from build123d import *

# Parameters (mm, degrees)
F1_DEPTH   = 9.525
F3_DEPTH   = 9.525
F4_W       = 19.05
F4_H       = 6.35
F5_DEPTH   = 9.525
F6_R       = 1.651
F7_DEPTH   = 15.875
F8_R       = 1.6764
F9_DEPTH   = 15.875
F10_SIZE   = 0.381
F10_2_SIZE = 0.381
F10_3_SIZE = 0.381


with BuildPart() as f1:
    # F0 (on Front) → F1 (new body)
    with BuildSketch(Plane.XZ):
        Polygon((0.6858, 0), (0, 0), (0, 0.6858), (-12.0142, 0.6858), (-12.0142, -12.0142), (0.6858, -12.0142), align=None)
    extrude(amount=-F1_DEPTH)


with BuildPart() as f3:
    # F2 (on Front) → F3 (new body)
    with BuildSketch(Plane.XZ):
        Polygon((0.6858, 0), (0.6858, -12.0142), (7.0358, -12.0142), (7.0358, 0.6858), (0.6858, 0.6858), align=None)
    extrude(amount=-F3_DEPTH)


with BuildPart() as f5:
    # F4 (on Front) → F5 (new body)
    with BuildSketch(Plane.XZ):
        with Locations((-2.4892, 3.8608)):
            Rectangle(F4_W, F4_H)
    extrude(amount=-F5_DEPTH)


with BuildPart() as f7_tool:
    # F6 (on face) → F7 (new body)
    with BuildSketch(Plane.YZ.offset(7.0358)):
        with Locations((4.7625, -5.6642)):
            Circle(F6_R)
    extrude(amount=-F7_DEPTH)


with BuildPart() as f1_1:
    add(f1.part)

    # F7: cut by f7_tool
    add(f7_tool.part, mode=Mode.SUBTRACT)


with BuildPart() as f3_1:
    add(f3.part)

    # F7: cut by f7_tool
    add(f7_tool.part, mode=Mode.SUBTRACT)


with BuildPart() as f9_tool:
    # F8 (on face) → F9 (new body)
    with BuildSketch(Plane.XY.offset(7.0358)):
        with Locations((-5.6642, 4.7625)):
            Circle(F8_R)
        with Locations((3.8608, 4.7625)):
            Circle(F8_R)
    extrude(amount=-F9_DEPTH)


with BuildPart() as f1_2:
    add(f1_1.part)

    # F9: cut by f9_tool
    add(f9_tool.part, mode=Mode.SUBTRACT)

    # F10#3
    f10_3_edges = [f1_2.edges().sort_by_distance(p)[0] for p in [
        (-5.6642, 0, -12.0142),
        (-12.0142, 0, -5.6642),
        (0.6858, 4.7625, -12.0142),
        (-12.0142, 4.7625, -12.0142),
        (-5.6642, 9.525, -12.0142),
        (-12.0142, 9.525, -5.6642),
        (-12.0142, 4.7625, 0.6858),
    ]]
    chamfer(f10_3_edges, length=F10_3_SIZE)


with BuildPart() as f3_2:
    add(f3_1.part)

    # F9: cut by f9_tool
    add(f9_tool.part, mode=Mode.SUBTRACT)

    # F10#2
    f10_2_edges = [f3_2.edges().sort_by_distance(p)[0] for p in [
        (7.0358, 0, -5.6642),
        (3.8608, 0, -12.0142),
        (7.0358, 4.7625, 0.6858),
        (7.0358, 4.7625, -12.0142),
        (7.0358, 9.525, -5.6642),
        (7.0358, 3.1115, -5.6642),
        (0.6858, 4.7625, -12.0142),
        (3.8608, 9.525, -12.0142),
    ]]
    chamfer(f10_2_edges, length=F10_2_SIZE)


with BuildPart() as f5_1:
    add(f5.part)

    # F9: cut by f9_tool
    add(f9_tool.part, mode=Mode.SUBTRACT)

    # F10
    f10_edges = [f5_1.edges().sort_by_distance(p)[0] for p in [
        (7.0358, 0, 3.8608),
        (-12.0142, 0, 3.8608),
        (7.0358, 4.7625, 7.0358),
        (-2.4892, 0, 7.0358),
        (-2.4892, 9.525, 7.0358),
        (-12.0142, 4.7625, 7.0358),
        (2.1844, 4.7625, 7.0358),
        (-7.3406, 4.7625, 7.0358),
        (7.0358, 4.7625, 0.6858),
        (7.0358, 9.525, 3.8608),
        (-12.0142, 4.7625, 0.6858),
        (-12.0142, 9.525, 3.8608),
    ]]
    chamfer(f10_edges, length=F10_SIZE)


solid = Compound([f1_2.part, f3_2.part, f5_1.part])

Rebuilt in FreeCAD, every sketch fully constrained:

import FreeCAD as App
import Part
import Sketcher

V = App.Vector
Q = App.Units.Quantity


def edges_at(feature, points):
    """Names of the edges that pass closest to the given points."""
    edges = feature.Shape.Edges
    near = lambda p: min(range(len(edges)), key=lambda i: edges[i].distToShape(Part.Vertex(*p))[0])
    return sorted({f"Edge{near(p) + 1}" for p in points})


def add_polygon(sketch, points):
    """Adds a closed chain of lines whose ends are joined by coincident constraints."""
    first, n = sketch.GeometryCount, len(points)
    for a, b in zip(points, points[1:] + points[:1]):
        sketch.addGeometry(Part.LineSegment(App.Vector(*a, 0), App.Vector(*b, 0)), False)
    for i in range(n):
        sketch.addConstraint(Sketcher.Constraint("Coincident", first + i, 2, first + (i + 1) % n, 1))

doc = App.newDocument("Part")
params = doc.addObject("Spreadsheet::Sheet", "Params")
for row, (alias, value) in enumerate([
    ("sketch1_width", "0.5 in"),
    ("sketch1_width2", "0.027 in"),
    ("pad1_length", "0.375 in"),
    ("sketch2_height", "0.5 in"),
    ("sketch2_width", "0.25 in"),
    ("pad2_length", "0.375 in"),
    ("sketch3_width", "0.75 in"),
    ("sketch3_height", "0.25 in"),
    ("pad3_length", "0.375 in"),
    ("sketch4_diameter", "0.13 in"),
    ("pad4_length", "0.625 in"),
    ("sketch5_diameter", "0.132 in"),
    ("pad5_length", "0.625 in"),
    ("chamfer_size", "0.015 in"),
    ("chamfer2_size", "0.015 in"),
    ("chamfer3_size", "0.015 in"),
], start=1):
    params.set(f"A{row}", alias)
    params.set(f"B{row}", "=" + value)
    params.setAlias(f"B{row}", alias)

body = doc.addObject("PartDesign::Body", "Body")

# Sketch on XZ plane
sketch1 = body.newObject("Sketcher::SketchObject", "Sketch")
sketch1.AttachmentSupport = (doc.getObject("XZ_Plane"), [""])
sketch1.MapMode = "FlatFace"
add_polygon(sketch1, [(0.7, 0), (0, 0), (0, 0.7), (-12, 0.7), (-12, -12), (0.7, -12)])  # lines 0-5
sketch1.addConstraint(Sketcher.Constraint("Horizontal", 0))
sketch1.addConstraint(Sketcher.Constraint("Vertical", 1))
sketch1.addConstraint(Sketcher.Constraint("Horizontal", 2))
sketch1.addConstraint(Sketcher.Constraint("Vertical", 3))
sketch1.addConstraint(Sketcher.Constraint("Horizontal", 4))
sketch1.addConstraint(Sketcher.Constraint("Vertical", 5))
sketch1.addConstraint(Sketcher.Constraint("Coincident", 0, 2, -1, 1))
sketch1.addConstraint(Sketcher.Constraint("Equal", 0, 1))
sketch1.addConstraint(Sketcher.Constraint("Equal", 4, 3))
sketch1.addConstraint(Sketcher.Constraint("DistanceX", 4, 1, 4, 2, Q("0.5 in")))
sketch1.addConstraint(Sketcher.Constraint("DistanceX", 0, 2, 0, 1, Q("0.027 in")))
sketch1.setExpression("Constraints[15]", "Params.sketch1_width")
sketch1.setExpression("Constraints[16]", "Params.sketch1_width2")
pad1 = body.newObject("PartDesign::Pad", "Pad")
pad1.Profile = sketch1
pad1.setExpression("Length", "Params.pad1_length")
pad1.Reversed = True
body2 = doc.addObject("PartDesign::Body", "Body001")

# Sketch on XZ plane
sketch2 = body2.newObject("Sketcher::SketchObject", "Sketch001")
sketch2.AttachmentSupport = (doc.getObject("XZ_Plane001"), [""])
sketch2.MapMode = "FlatFace"
add_polygon(sketch2, [(1, -12), (7, -12), (7, 1), (1, 1)])  # lines 0-3
sketch2.addConstraint(Sketcher.Constraint("Horizontal", 0))
sketch2.addConstraint(Sketcher.Constraint("Vertical", 1))
sketch2.addConstraint(Sketcher.Constraint("Horizontal", 2))
sketch2.addConstraint(Sketcher.Constraint("Vertical", 3))
sketch2.addConstraint(Sketcher.Constraint("DistanceY", 1, 1, 1, 2, Q("0.5 in")))
sketch2.addConstraint(Sketcher.Constraint("DistanceX", 0, 1, 0, 2, Q("0.25 in")))
sketch2.addConstraint(Sketcher.Constraint("DistanceX", -1, 1, 0, 2, Q("0.277 in")))
sketch2.addConstraint(Sketcher.Constraint("DistanceY", 0, 2, -1, 1, Q("0.473 in")))
sketch2.setExpression("Constraints[8]", "Params.sketch2_height")
sketch2.setExpression("Constraints[9]", "Params.sketch2_width")
pad2 = body2.newObject("PartDesign::Pad", "Pad001")
pad2.Profile = sketch2
pad2.setExpression("Length", "Params.pad2_length")
pad2.Reversed = True
body3 = doc.addObject("PartDesign::Body", "Body002")

# Sketch on XZ plane
sketch3 = body3.newObject("Sketcher::SketchObject", "Sketch002")
sketch3.AttachmentSupport = (doc.getObject("XZ_Plane002"), [""])
sketch3.MapMode = "FlatFace"
add_polygon(sketch3, [(-12, 7), (-12, 1), (7, 1), (7, 7)])  # lines 0-3
sketch3.addConstraint(Sketcher.Constraint("Vertical", 0))
sketch3.addConstraint(Sketcher.Constraint("Horizontal", 1))
sketch3.addConstraint(Sketcher.Constraint("Vertical", 2))
sketch3.addConstraint(Sketcher.Constraint("Horizontal", 3))
sketch3.addConstraint(Sketcher.Constraint("DistanceX", 1, 1, 1, 2, Q("0.75 in")))
sketch3.addConstraint(Sketcher.Constraint("DistanceY", 0, 2, 0, 1, Q("0.25 in")))
sketch3.addConstraint(Sketcher.Constraint("DistanceX", 0, 2, -1, 1, Q("0.473 in")))
sketch3.addConstraint(Sketcher.Constraint("DistanceY", -1, 1, 0, 2, Q("0.027 in")))
sketch3.setExpression("Constraints[8]", "Params.sketch3_width")
sketch3.setExpression("Constraints[9]", "Params.sketch3_height")
pad3 = body3.newObject("PartDesign::Pad", "Pad002")
pad3.Profile = sketch3
pad3.setExpression("Length", "Params.pad3_length")
pad3.Reversed = True
body4 = doc.addObject("PartDesign::Body", "Body003")

# Sketch on YZ plane
sketch4 = body4.newObject("Sketcher::SketchObject", "Sketch003")
sketch4.AttachmentSupport = (doc.getObject("YZ_Plane003"), [""])
sketch4.MapMode = "FlatFace"
sketch4.AttachmentOffset = App.Placement(V(0, 0, 0.277 * 25.4), App.Rotation())
sketch4.addGeometry(Part.Circle(V(4.8, -5.7, 0), V(0, 0, 1), 1.7), False)
sketch4.addConstraint(Sketcher.Constraint("Diameter", 0, Q("0.13 in")))
sketch4.addConstraint(Sketcher.Constraint("DistanceX", -1, 1, 0, 3, Q("0.1875 in")))
sketch4.addConstraint(Sketcher.Constraint("DistanceY", 0, 3, -1, 1, Q("0.223 in")))
sketch4.setExpression("Constraints[0]", "Params.sketch4_diameter")
pad4 = body4.newObject("PartDesign::Pad", "Pad003")
pad4.Profile = sketch4
pad4.setExpression("Length", "Params.pad4_length")
pad4.Reversed = True
doc.recompute()

body5 = doc.addObject("PartDesign::Body", "Body004")
body5.BaseFeature = body4
boolean = body.newObject("PartDesign::Boolean", "Boolean")
boolean.Type = "Cut"
boolean.addObjects([body5])
doc.recompute()

boolean2 = body2.newObject("PartDesign::Boolean", "Boolean001")
boolean2.Type = "Cut"
boolean2.addObjects([body4])
body6 = doc.addObject("PartDesign::Body", "Body005")
body6.AllowCompound = True

# Sketch on XY plane
sketch5 = body6.newObject("Sketcher::SketchObject", "Sketch004")
sketch5.AttachmentSupport = (doc.getObject("XY_Plane005"), [""])
sketch5.MapMode = "FlatFace"
sketch5.AttachmentOffset = App.Placement(V(0, 0, 0.277 * 25.4), App.Rotation())
sketch5.addGeometry(Part.Circle(V(-5.7, 4.8, 0), V(0, 0, 1), 1.7), False)
sketch5.addGeometry(Part.Circle(V(3.9, 4.8, 0), V(0, 0, 1), 1.7), False)
sketch5.addConstraint(Sketcher.Constraint("Equal", 0, 1))
sketch5.addConstraint(Sketcher.Constraint("Horizontal", 0, 3, 1, 3))
sketch5.addConstraint(Sketcher.Constraint("Diameter", 0, Q("0.132 in")))
sketch5.addConstraint(Sketcher.Constraint("DistanceX", 0, 3, -1, 1, Q("0.223 in")))
sketch5.addConstraint(Sketcher.Constraint("DistanceY", -1, 1, 0, 3, Q("0.1875 in")))
sketch5.addConstraint(Sketcher.Constraint("DistanceX", -1, 1, 1, 3, Q("0.152 in")))
sketch5.setExpression("Constraints[2]", "Params.sketch5_diameter")
pad5 = body6.newObject("PartDesign::Pad", "Pad004")
pad5.Profile = sketch5
pad5.setExpression("Length", "Params.pad5_length")
pad5.Reversed = True
doc.recompute()

body7 = doc.addObject("PartDesign::Body", "Body006")
body7.BaseFeature = body6
boolean3 = body.newObject("PartDesign::Boolean", "Boolean002")
boolean3.Type = "Cut"
boolean3.addObjects([body7])
doc.recompute()

chamfer = body.newObject("PartDesign::Chamfer", "Chamfer")
chamfer.Base = (boolean3, edges_at(boolean3, [
    (-5.664, 0, -12.014),
    (-12.014, 0, -5.664),
    (0.686, 4.763, -12.014),
    (-12.014, 4.763, -12.014),
    (-5.664, 9.525, -12.014),
    (-12.014, 9.525, -5.664),
    (-12.014, 4.763, 0.686),
]))
chamfer.setExpression("Size", "Params.chamfer_size")
doc.recompute()

body8 = doc.addObject("PartDesign::Body", "Body007")
body8.BaseFeature = body6
boolean4 = body2.newObject("PartDesign::Boolean", "Boolean003")
boolean4.Type = "Cut"
boolean4.addObjects([body8])
doc.recompute()

chamfer2 = body2.newObject("PartDesign::Chamfer", "Chamfer001")
chamfer2.Base = (boolean4, edges_at(boolean4, [
    (7.036, 0, -5.664),
    (3.861, 0, -12.014),
    (7.036, 4.763, 0.686),
    (7.036, 4.763, -12.014),
    (7.036, 9.525, -5.664),
    (7.036, 3.111, -5.664),
    (0.686, 4.763, -12.014),
    (3.861, 9.525, -12.014),
]))
chamfer2.setExpression("Size", "Params.chamfer2_size")
doc.recompute()

boolean5 = body3.newObject("PartDesign::Boolean", "Boolean004")
boolean5.Type = "Cut"
boolean5.addObjects([body6])
doc.recompute()

chamfer3 = body3.newObject("PartDesign::Chamfer", "Chamfer002")
chamfer3.Base = (boolean5, edges_at(boolean5, [
    (7.036, 0, 3.861),
    (-12.014, 0, 3.861),
    (7.036, 4.763, 7.036),
    (-2.489, 0, 7.036),
    (-2.489, 9.525, 7.036),
    (-12.014, 4.763, 7.036),
    (2.184, 4.763, 7.036),
    (-7.341, 4.763, 7.036),
    (7.036, 4.763, 0.686),
    (7.036, 9.525, 3.861),
    (-12.014, 4.763, 0.686),
    (-12.014, 9.525, 3.861),
]))
chamfer3.setExpression("Size", "Params.chamfer3_size")

doc.recompute()
